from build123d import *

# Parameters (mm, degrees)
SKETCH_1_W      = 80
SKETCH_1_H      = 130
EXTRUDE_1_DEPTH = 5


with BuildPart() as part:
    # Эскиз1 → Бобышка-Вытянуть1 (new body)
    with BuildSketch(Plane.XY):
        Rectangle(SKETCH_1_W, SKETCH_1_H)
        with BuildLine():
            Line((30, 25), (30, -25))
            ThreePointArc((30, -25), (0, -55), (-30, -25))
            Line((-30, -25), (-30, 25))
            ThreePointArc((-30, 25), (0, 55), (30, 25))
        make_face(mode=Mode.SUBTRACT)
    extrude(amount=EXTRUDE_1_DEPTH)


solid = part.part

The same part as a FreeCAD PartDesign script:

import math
import FreeCAD as App
import Part
import Sketcher

V = App.Vector
Q = App.Units.Quantity


def add_polygon(sketch, points):
    """Adds a closed chain of lines whose ends are joined by coincident constraints."""
    first, n = sketch.GeometryCount, len(points)
    for a, b in zip(points, points[1:] + points[:1]):
        sketch.addGeometry(Part.LineSegment(App.Vector(*a, 0), App.Vector(*b, 0)), False)
    for i in range(n):
        sketch.addConstraint(Sketcher.Constraint("Coincident", first + i, 2, first + (i + 1) % n, 1))

doc = App.newDocument("Part")
body = doc.addObject("PartDesign::Body", "Body")

# Sketch on XY plane
sketch1 = doc.addObject("Sketcher::SketchObject", "Sketch")
body.addObject(sketch1)
sketch1.AttachmentSupport = (doc.XY_Plane, [""])
sketch1.MapMode = "FlatFace"
add_polygon(sketch1, [(-40, 65), (-40, -65), (40, -65), (40, 65)])  # lines 0-3
sketch1.addGeometry(Part.ArcOfCircle(Part.Circle(V(0, 25, 0), V(0, 0, 1), 30), math.radians(0), math.radians(180)), False)  # 4
sketch1.addGeometry(Part.LineSegment(V(30, 25, 0), V(30, -25, 0)), False)  # 5
sketch1.addGeometry(Part.ArcOfCircle(Part.Circle(V(0, -25, 0), V(0, 0, 1), 30), math.radians(180), math.radians(360)), False)  # 6
sketch1.addGeometry(Part.LineSegment(V(-30, -25, 0), V(-30, 25, 0)), False)  # 7
sketch1.addConstraint(Sketcher.Constraint("Tangent", 4, 1, 5, 1))
sketch1.addConstraint(Sketcher.Constraint("Tangent", 5, 2, 6, 2))
sketch1.addConstraint(Sketcher.Constraint("Tangent", 6, 1, 7, 1))
sketch1.addConstraint(Sketcher.Constraint("Tangent", 7, 2, 4, 2))
sketch1.addConstraint(Sketcher.Constraint("Vertical", 0))
sketch1.addConstraint(Sketcher.Constraint("Horizontal", 1))
sketch1.addConstraint(Sketcher.Constraint("Vertical", 2))
sketch1.addConstraint(Sketcher.Constraint("Horizontal", 3))
sketch1.addConstraint(Sketcher.Constraint("Vertical", 5))
sketch1.addConstraint(Sketcher.Constraint("Vertical", 7))
sketch1.addConstraint(Sketcher.Constraint("Symmetric", 4, 3, 6, 3, -1, 1))
sketch1.addConstraint(Sketcher.Constraint("Symmetric", 0, 2, 2, 2, -1, 1))
sketch1.addConstraint(Sketcher.Constraint("Radius", 4, Q("30 mm")))
sketch1.addConstraint(Sketcher.Constraint("DistanceX", 1, 1, 1, 2, Q("80 mm")))
sketch1.addConstraint(Sketcher.Constraint("DistanceY", 0, 2, 0, 1, Q("130 mm")))
sketch1.addConstraint(Sketcher.Constraint("DistanceY", 5, 2, 5, 1, Q("50 mm")))
pad1 = doc.addObject("PartDesign::Pad", "Pad")
body.addObject(pad1)
pad1.Profile = sketch1
pad1.Length = 5

doc.recompute()
